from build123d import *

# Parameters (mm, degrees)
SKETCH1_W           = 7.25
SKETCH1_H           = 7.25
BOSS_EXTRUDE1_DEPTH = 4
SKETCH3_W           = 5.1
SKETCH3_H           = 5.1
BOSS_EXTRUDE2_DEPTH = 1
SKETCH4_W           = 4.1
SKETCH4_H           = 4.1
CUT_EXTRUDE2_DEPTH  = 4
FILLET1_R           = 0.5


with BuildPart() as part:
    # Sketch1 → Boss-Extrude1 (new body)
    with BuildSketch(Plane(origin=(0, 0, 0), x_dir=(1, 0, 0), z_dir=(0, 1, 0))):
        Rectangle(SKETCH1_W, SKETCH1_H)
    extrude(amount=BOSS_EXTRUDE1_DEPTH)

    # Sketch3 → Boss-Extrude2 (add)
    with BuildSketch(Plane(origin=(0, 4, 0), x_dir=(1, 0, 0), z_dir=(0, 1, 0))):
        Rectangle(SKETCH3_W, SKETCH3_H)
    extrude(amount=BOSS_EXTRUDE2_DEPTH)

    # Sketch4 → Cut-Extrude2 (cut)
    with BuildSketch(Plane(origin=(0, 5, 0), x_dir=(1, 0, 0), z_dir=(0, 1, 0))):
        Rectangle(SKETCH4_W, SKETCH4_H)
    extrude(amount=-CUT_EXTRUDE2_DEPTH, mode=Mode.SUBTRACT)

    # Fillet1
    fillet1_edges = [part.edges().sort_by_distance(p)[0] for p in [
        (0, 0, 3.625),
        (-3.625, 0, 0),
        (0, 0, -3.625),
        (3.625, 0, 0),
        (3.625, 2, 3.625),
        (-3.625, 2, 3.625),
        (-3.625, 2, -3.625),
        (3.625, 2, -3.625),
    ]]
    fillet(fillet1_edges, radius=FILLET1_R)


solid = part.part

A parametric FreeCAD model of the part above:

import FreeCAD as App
import Part
import Sketcher
Q = App.Units.Quantity


def edges_at(feature, points):
    """Names of the edges that pass closest to the given points."""
    edges = feature.Shape.Edges
    near = lambda p: min(range(len(edges)), key=lambda i: edges[i].distToShape(Part.Vertex(*p))[0])
    return sorted({f"Edge{near(p) + 1}" for p in points})

doc = App.newDocument("Part")
body = doc.addObject("PartDesign::Body", "Body")

# Sketch on XZ plane
sketch1 = doc.addObject("Sketcher::SketchObject", "Sketch")
body.addObject(sketch1)
sketch1.AttachmentSupport = (doc.XZ_Plane, [""])
sketch1.MapMode = "FlatFace"
sketch1.addGeometry([
    Part.LineSegment(App.Vector(-4, -4, 0), App.Vector(-4, 4, 0)),
    Part.LineSegment(App.Vector(-4, 4, 0), App.Vector(4, 4, 0)),
    Part.LineSegment(App.Vector(4, 4, 0), App.Vector(4, -4, 0)),
    Part.LineSegment(App.Vector(4, -4, 0), App.Vector(-4, -4, 0)),
], False)
sketch1.addConstraint([
    Sketcher.Constraint("Coincident", 0, 2, 1, 1),
    Sketcher.Constraint("Coincident", 1, 2, 2, 1),
    Sketcher.Constraint("Coincident", 2, 2, 3, 1),
    Sketcher.Constraint("Coincident", 3, 2, 0, 1),
    Sketcher.Constraint("Vertical", 0),
    Sketcher.Constraint("Horizontal", 1),
    Sketcher.Constraint("Vertical", 2),
    Sketcher.Constraint("Horizontal", 3),
    Sketcher.Constraint("Symmetric", 0, 2, 2, 2, -1, 1),
    Sketcher.Constraint("Equal", 3, 0),
    Sketcher.Constraint("DistanceX", 1, 1, 1, 2, Q("7.25 mm")),
])
pad1 = doc.addObject("PartDesign::Pad", "Pad")
body.addObject(pad1)
pad1.Profile = sketch1
pad1.Length = 4
pad1.Reversed = True

# Sketch on XZ plane
sketch2 = doc.addObject("Sketcher::SketchObject", "Sketch001")
body.addObject(sketch2)
sketch2.AttachmentSupport = (doc.XZ_Plane, [""])
sketch2.MapMode = "FlatFace"
sketch2.AttachmentOffset = App.Placement(App.Vector(0, 0, -4), App.Rotation())
sketch2.addGeometry([
    Part.LineSegment(App.Vector(-3, -3, 0), App.Vector(-3, 3, 0)),
    Part.LineSegment(App.Vector(-3, 3, 0), App.Vector(3, 3, 0)),
    Part.LineSegment(App.Vector(3, 3, 0), App.Vector(3, -3, 0)),
    Part.LineSegment(App.Vector(3, -3, 0), App.Vector(-3, -3, 0)),
], False)
sketch2.addConstraint([
    Sketcher.Constraint("Coincident", 0, 2, 1, 1),
    Sketcher.Constraint("Coincident", 1, 2, 2, 1),
    Sketcher.Constraint("Coincident", 2, 2, 3, 1),
    Sketcher.Constraint("Coincident", 3, 2, 0, 1),
    Sketcher.Constraint("Vertical", 0),
    Sketcher.Constraint("Horizontal", 1),
    Sketcher.Constraint("Vertical", 2),
    Sketcher.Constraint("Horizontal", 3),
    Sketcher.Constraint("Symmetric", 0, 2, 2, 2, -1, 1),
    Sketcher.Constraint("Equal", 3, 0),
    Sketcher.Constraint("DistanceX", 1, 1, 1, 2, Q("5.1 mm")),
])
pad2 = doc.addObject("PartDesign::Pad", "Pad001")
body.addObject(pad2)
pad2.Profile = sketch2
pad2.Length = 1
pad2.Reversed = True

# Sketch on XZ plane
sketch3 = doc.addObject("Sketcher::SketchObject", "Sketch002")
body.addObject(sketch3)
sketch3.AttachmentSupport = (doc.XZ_Plane, [""])
sketch3.MapMode = "FlatFace"
sketch3.AttachmentOffset = App.Placement(App.Vector(0, 0, -5), App.Rotation())
sketch3.addGeometry([
    Part.LineSegment(App.Vector(-2, -2, 0), App.Vector(-2, 2, 0)),
    Part.LineSegment(App.Vector(-2, 2, 0), App.Vector(2, 2, 0)),
    Part.LineSegment(App.Vector(2, 2, 0), App.Vector(2, -2, 0)),
    Part.LineSegment(App.Vector(2, -2, 0), App.Vector(-2, -2, 0)),
], False)
sketch3.addConstraint([
    Sketcher.Constraint("Coincident", 0, 2, 1, 1),
    Sketcher.Constraint("Coincident", 1, 2, 2, 1),
    Sketcher.Constraint("Coincident", 2, 2, 3, 1),
    Sketcher.Constraint("Coincident", 3, 2, 0, 1),
    Sketcher.Constraint("Vertical", 0),
    Sketcher.Constraint("Horizontal", 1),
    Sketcher.Constraint("Vertical", 2),
    Sketcher.Constraint("Horizontal", 3),
    Sketcher.Constraint("Symmetric", 0, 2, 2, 2, -1, 1),
    Sketcher.Constraint("Equal", 3, 0),
    Sketcher.Constraint("DistanceX", 1, 1, 1, 2, Q("4.1 mm")),
])
pocket1 = doc.addObject("PartDesign::Pocket", "Pocket")
body.addObject(pocket1)
pocket1.Profile = sketch3
pocket1.Length = 4
pocket1.Reversed = True
doc.recompute()

fillet = doc.addObject("PartDesign::Fillet", "Fillet")
body.addObject(fillet)
fillet.Base = (pocket1, edges_at(pocket1, [
    (0, 0, 3.625),
    (-3.625, 0, 0),
    (0, 0, -3.625),
    (3.625, 0, 0),
    (3.625, 2, 3.625),
    (-3.625, 2, 3.625),
    (-3.625, 2, -3.625),
    (3.625, 2, -3.625),
]))
fillet.Radius = 0.5

doc.recompute()
